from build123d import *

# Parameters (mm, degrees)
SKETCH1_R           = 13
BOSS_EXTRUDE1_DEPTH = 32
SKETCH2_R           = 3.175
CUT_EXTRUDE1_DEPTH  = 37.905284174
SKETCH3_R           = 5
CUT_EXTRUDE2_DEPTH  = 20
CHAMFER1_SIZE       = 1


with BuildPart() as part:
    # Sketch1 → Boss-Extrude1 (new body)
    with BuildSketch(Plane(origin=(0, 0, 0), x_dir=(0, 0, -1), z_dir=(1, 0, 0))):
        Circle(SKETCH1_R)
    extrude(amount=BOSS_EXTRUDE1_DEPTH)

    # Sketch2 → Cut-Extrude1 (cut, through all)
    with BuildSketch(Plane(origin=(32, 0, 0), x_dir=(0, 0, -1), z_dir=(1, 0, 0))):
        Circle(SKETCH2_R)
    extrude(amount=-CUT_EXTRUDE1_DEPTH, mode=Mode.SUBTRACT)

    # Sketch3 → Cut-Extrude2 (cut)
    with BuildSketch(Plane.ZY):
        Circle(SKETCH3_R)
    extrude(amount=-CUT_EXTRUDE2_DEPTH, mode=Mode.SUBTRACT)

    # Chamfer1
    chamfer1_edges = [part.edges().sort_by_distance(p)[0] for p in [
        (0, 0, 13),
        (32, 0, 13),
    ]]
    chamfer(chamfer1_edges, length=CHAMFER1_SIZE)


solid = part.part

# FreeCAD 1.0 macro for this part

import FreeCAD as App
import Part
import Sketcher
from FreeCAD import Vector


def edges_at(feature, points):
    """Names of the edges that pass closest to the given points."""
    edges = feature.Shape.Edges
    near = lambda p: min(range(len(edges)), key=lambda i: edges[i].distToShape(Part.Vertex(*p))[0])
    return sorted({f"Edge{near(p) + 1}" for p in points})

doc = App.newDocument("Part")
body = doc.addObject("PartDesign::Body", "Body")

# Sketch on YZ plane
sketch1 = body.newObject("Sketcher::SketchObject", "Sketch")
sketch1.AttachmentSupport = (doc.getObject("YZ_Plane"), [""])
sketch1.MapMode = "FlatFace"
sketch1.addGeometry(Part.Circle(Vector(0, 0, 0), Vector(0, 0, 1), 13), False)
sketch1.addConstraint([
    Sketcher.Constraint("Coincident", 0, 3, -1, 1),
    Sketcher.Constraint("Diameter", 0, 26.0),
])
pad1 = body.newObject("PartDesign::Pad", "Pad")
pad1.Profile = sketch1
pad1.Length = 32

# Sketch on YZ plane
sketch2 = body.newObject("Sketcher::SketchObject", "Sketch001")
sketch2.AttachmentSupport = (doc.getObject("YZ_Plane"), [""])
sketch2.MapMode = "FlatFace"
sketch2.AttachmentOffset = App.Placement(Vector(0, 0, 32), App.Rotation())
sketch2.addGeometry(Part.Circle(Vector(0, 0, 0), Vector(0, 0, 1), 3.175), False)
sketch2.addConstraint([
    Sketcher.Constraint("Coincident", 0, 3, -1, 1),
    Sketcher.Constraint("Diameter", 0, 6.35),
])
pocket1 = body.newObject("PartDesign::Pocket", "Pocket")
pocket1.Profile = sketch2
pocket1.Type = "ThroughAll"

# Sketch on YZ plane
sketch3 = body.newObject("Sketcher::SketchObject", "Sketch002")
sketch3.AttachmentSupport = (doc.getObject("YZ_Plane"), [""])
sketch3.MapMode = "FlatFace"
sketch3.addGeometry(Part.Circle(Vector(0, 0, 0), Vector(0, 0, 1), 5), False)
sketch3.addConstraint([
    Sketcher.Constraint("Coincident", 0, 3, -1, 1),
    Sketcher.Constraint("Diameter", 0, 10.0),
])
pocket2 = body.newObject("PartDesign::Pocket", "Pocket001")
pocket2.Profile = sketch3
pocket2.Length = 20
pocket2.Reversed = True
doc.recompute()

chamfer = body.newObject("PartDesign::Chamfer", "Chamfer")
chamfer.Base = (pocket2, edges_at(pocket2, [(0, 0, 13), (32, 0, 13)]))
chamfer.Size = 1

doc.recompute()
